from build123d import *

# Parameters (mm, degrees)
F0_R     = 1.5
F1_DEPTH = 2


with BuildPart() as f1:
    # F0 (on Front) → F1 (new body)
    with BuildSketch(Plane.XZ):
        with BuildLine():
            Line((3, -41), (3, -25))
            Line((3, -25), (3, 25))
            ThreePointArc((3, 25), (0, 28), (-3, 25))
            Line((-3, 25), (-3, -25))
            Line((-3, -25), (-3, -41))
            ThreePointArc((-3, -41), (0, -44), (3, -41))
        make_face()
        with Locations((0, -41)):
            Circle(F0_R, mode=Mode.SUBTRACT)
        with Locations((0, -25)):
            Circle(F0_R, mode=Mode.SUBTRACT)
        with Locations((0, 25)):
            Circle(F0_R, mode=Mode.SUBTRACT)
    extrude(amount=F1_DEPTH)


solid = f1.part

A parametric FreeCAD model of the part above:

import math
import FreeCAD as App
import Part
import Sketcher
from FreeCAD import Vector

doc = App.newDocument("Part")
body = doc.addObject("PartDesign::Body", "Body")

sketch1 = body.newObject("Sketcher::SketchObject", "Sketch")
sketch1.AttachmentSupport = (doc.getObject("XZ_Plane"), [""])
sketch1.MapMode = "FlatFace"
sketch1.addGeometry(Part.LineSegment(Vector(3, -41, 0), Vector(3, 25, 0)), False)
sketch1.addGeometry(Part.ArcOfCircle(Part.Circle(Vector(0, 25, 0), Vector(0, 0, 1), 3), math.radians(0), math.radians(180)), False)
sketch1.addGeometry(Part.LineSegment(Vector(-3, 25, 0), Vector(-3, -41, 0)), False)
sketch1.addGeometry(Part.ArcOfCircle(Part.Circle(Vector(0, -41, 0), Vector(0, 0, 1), 3), math.radians(180), math.radians(360)), False)
sketch1.addGeometry(Part.Circle(Vector(0, -41, 0), Vector(0, 0, 1), 1.5), False)
sketch1.addGeometry(Part.Circle(Vector(0, -25, 0), Vector(0, 0, 1), 1.5), False)
sketch1.addGeometry(Part.Circle(Vector(0, 25, 0), Vector(0, 0, 1), 1.5), False)
sketch1.addConstraint(Sketcher.Constraint("Tangent", 0, 2, 1, 1))
sketch1.addConstraint(Sketcher.Constraint("Tangent", 1, 2, 2, 1))
sketch1.addConstraint(Sketcher.Constraint("Tangent", 2, 2, 3, 1))
sketch1.addConstraint(Sketcher.Constraint("Tangent", 3, 2, 0, 1))
sketch1.addConstraint(Sketcher.Constraint("Vertical", 0))
sketch1.addConstraint(Sketcher.Constraint("Vertical", 2))
sketch1.addConstraint(Sketcher.Constraint("Coincident", 4, 3, 3, 3))
sketch1.addConstraint(Sketcher.Constraint("Coincident", 6, 3, 1, 3))
sketch1.addConstraint(Sketcher.Constraint("Equal", 4, 5))
sketch1.addConstraint(Sketcher.Constraint("Equal", 5, 6))
sketch1.addConstraint(Sketcher.Constraint("Symmetric", 1, 3, 5, 3, -1, 1))
sketch1.addConstraint(Sketcher.Constraint("PointOnObject", 1, 3, -2))
sketch1.addConstraint(Sketcher.Constraint("Diameter", 4, 3.0))
sketch1.addConstraint(Sketcher.Constraint("Radius", 1, 3.0))
sketch1.addConstraint(Sketcher.Constraint("DistanceY", 0, 1, 0, 2, 66.0))
sketch1.addConstraint(Sketcher.Constraint("DistanceY", -1, 1, 1, 3, 25.0))
pad1 = body.newObject("PartDesign::Pad", "Pad")
pad1.Profile = sketch1
pad1.Length = 2

doc.recompute()
